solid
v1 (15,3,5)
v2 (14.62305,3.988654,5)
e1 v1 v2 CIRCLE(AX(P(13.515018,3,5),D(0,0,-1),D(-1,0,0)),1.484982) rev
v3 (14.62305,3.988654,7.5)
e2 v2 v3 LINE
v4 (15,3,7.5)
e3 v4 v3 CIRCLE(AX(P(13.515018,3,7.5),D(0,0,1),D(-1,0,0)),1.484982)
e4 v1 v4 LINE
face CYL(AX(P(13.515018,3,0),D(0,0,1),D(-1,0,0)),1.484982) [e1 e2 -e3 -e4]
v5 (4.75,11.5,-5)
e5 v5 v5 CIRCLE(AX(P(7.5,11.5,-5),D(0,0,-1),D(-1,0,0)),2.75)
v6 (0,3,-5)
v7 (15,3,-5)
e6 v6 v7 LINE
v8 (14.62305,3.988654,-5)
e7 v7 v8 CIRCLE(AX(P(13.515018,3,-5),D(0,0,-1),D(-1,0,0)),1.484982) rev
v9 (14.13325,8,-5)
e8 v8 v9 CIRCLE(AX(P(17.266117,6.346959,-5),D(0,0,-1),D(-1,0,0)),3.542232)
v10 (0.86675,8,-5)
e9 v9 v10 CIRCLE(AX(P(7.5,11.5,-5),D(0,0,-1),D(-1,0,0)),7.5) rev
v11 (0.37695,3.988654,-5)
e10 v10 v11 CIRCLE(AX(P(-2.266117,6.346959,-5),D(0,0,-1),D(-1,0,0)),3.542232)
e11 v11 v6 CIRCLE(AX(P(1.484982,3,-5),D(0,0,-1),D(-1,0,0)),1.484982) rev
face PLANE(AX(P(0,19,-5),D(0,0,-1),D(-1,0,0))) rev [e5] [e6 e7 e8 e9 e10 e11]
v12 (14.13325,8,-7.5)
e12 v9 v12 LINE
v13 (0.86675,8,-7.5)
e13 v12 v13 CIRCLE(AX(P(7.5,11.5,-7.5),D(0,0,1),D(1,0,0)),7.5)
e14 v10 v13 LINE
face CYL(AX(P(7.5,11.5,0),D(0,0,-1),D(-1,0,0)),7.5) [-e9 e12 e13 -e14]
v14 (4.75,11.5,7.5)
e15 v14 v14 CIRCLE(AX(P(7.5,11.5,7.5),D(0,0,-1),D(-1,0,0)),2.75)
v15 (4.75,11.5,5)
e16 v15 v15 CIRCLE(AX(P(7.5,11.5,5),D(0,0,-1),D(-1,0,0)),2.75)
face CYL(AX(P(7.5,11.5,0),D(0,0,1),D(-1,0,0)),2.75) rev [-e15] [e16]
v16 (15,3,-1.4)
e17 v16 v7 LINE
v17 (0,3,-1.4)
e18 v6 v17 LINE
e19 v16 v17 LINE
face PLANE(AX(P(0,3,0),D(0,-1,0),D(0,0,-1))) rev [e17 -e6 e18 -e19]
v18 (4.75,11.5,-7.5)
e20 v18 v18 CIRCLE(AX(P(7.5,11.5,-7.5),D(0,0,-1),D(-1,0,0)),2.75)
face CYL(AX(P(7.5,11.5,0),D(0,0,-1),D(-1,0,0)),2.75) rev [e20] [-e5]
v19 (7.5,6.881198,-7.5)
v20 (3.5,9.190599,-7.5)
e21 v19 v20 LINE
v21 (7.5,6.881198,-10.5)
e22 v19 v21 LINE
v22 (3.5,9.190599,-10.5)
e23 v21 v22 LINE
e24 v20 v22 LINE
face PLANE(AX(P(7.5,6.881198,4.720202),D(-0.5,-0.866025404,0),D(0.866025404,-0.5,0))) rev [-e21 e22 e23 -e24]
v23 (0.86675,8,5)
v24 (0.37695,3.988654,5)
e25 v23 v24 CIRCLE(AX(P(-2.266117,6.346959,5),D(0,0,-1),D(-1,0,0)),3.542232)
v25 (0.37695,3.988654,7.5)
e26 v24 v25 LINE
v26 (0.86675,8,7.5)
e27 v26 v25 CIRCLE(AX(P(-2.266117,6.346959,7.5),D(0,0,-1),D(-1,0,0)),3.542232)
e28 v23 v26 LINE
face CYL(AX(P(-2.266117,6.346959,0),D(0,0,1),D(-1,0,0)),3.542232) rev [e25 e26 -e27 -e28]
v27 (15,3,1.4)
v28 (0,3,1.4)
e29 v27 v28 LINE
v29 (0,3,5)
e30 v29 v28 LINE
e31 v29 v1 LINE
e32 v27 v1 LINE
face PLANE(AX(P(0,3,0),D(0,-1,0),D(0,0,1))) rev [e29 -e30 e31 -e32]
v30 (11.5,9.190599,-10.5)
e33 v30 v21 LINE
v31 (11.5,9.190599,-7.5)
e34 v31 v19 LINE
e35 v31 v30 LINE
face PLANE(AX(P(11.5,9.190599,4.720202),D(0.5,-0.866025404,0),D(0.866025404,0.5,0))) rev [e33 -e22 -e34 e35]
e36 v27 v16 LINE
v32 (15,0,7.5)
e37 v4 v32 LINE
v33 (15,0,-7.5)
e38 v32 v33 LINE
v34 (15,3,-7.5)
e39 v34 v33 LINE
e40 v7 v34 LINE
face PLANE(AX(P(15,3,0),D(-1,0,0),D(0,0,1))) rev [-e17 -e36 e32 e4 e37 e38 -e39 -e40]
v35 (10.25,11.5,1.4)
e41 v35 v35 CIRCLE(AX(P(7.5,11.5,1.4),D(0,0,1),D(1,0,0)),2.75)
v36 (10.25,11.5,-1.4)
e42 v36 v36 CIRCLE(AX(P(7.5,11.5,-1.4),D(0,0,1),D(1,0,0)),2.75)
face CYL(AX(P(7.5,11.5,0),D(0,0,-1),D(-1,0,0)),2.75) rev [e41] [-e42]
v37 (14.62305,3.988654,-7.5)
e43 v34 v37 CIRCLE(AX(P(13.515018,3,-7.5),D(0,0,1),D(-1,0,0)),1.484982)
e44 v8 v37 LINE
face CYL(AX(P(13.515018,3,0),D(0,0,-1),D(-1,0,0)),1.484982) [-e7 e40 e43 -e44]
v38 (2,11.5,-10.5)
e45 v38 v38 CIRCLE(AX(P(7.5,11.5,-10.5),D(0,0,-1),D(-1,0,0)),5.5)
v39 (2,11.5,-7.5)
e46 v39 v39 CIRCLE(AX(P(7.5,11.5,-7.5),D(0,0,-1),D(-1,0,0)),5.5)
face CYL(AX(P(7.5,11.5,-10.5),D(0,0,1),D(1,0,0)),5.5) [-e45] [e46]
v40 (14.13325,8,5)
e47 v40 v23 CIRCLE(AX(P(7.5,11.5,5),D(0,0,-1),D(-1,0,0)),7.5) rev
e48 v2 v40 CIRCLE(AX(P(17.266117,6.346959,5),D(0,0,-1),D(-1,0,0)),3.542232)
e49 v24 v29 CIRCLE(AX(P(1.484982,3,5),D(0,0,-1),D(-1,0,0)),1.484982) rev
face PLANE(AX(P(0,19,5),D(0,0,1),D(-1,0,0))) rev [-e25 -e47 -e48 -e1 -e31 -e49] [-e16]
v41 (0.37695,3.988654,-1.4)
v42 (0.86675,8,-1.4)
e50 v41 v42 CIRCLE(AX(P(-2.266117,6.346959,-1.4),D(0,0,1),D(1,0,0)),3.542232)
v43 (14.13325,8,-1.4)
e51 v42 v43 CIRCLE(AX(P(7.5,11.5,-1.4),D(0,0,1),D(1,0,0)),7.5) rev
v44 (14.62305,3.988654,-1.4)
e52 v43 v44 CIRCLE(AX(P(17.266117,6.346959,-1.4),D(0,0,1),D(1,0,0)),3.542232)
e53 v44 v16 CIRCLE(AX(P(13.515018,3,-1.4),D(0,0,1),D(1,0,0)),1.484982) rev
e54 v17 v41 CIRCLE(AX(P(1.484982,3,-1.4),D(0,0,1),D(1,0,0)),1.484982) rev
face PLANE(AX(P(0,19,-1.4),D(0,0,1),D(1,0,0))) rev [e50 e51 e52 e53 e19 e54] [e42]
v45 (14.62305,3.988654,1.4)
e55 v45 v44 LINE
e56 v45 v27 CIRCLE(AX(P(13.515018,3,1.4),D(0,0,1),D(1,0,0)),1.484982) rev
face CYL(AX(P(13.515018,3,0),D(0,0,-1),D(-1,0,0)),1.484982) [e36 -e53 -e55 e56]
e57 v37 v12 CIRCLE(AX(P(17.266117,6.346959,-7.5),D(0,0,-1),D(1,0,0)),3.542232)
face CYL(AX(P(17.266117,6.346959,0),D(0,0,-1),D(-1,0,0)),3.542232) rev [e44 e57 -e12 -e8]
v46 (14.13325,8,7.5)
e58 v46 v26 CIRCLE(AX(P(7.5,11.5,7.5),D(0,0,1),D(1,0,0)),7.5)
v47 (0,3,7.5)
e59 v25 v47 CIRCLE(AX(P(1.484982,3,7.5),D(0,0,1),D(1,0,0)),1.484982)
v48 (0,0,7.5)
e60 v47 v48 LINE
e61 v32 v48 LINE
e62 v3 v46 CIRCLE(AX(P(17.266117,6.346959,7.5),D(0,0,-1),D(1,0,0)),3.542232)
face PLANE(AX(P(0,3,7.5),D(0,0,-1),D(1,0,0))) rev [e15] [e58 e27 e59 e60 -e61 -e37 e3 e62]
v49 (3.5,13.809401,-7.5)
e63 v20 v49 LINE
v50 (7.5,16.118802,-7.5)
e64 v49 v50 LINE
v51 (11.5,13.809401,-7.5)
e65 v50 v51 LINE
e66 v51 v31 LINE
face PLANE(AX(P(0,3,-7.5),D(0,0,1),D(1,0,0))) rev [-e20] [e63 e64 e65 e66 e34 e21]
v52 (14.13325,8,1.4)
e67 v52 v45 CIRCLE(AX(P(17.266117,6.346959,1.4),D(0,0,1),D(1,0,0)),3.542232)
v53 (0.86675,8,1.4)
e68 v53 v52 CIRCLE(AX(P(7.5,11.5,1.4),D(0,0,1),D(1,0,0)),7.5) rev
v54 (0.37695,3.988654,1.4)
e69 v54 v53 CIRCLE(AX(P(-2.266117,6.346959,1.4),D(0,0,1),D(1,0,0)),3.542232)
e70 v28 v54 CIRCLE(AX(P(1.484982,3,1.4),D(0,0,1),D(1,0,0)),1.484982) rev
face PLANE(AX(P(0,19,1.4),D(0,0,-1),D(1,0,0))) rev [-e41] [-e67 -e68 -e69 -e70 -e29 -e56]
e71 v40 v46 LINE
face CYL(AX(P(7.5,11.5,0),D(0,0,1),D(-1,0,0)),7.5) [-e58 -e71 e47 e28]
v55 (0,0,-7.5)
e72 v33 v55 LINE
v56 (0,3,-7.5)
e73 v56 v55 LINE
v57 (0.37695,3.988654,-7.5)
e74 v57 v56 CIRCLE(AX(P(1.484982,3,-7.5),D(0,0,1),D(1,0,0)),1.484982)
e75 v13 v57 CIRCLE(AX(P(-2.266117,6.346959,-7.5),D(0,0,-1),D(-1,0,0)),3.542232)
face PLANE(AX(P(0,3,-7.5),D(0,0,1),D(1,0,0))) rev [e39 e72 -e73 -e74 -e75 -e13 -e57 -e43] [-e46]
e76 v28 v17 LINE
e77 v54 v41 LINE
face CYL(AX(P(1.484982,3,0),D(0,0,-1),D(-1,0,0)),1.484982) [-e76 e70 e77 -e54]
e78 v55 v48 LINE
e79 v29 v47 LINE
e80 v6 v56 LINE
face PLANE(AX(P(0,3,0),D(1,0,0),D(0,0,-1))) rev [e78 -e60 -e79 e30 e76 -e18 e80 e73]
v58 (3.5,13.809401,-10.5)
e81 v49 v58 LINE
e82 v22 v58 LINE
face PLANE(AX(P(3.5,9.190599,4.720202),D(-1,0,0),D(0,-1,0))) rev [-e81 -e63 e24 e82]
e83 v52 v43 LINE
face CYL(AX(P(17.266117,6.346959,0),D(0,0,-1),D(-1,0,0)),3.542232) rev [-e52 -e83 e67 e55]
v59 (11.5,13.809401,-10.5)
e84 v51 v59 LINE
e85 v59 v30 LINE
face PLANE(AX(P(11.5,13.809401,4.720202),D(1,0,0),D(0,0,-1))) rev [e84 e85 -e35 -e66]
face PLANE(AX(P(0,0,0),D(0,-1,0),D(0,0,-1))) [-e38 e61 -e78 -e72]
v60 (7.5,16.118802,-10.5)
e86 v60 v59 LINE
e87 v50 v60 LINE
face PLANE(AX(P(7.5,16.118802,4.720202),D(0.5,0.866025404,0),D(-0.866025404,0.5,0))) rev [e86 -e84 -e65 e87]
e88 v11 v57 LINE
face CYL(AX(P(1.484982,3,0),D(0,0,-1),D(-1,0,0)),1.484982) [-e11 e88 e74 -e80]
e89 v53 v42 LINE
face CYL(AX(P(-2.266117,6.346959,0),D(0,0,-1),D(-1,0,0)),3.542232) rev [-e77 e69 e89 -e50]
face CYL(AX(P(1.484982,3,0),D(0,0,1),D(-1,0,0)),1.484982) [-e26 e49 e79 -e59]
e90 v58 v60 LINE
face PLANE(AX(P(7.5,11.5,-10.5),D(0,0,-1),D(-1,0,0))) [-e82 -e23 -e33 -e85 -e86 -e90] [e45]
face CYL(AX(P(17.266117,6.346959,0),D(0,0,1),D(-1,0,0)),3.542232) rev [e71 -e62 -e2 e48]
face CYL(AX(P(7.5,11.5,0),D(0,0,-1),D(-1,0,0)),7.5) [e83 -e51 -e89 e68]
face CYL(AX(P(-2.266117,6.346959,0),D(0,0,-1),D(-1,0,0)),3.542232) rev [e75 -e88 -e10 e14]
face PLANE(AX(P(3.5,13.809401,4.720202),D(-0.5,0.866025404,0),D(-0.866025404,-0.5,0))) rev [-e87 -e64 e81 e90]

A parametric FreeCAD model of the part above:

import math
import FreeCAD as App
import Part
import Sketcher

V = App.Vector
Q = App.Units.Quantity

doc = App.newDocument("Part")
params = doc.addObject("Spreadsheet::Sheet", "Params")
for row, (alias, value) in enumerate([
    ("sketch1_width", "15 mm"),
    ("sketch1_height", "7.5 mm"),
    ("pad1_length", "3 mm"),
    ("sketch2_width", "15 mm"),
    ("sketch2_height", "2.5 mm"),
    ("sketch2_height2", "1.4 mm"),
    ("pad2_length", "16 mm"),
    ("sketch3_radius", "7.5 mm"),
    ("sketch4_diameter", "5.5 mm"),
    ("sketch5_diameter", "11 mm"),
    ("pad3_length", "3 mm"),
    ("pocket3_length", "3 mm"),
], start=1):
    params.set(f"A{row}", alias)
    params.set(f"B{row}", "=" + value)
    params.setAlias(f"B{row}", alias)

body = doc.addObject("PartDesign::Body", "Body")

sketch1 = doc.addObject("Sketcher::SketchObject", "Sketch")
body.addObject(sketch1)
sketch1.AttachmentSupport = (doc.XZ_Plane, [""])
sketch1.MapMode = "FlatFace"
sketch1.addGeometry(Part.LineSegment(V(0, -8, 0), V(0, 0, 0)), False)
sketch1.addGeometry(Part.LineSegment(V(0, 0, 0), V(15, 0, 0)), False)
sketch1.addGeometry(Part.LineSegment(V(15, 0, 0), V(15, -8, 0)), False)
sketch1.addGeometry(Part.LineSegment(V(15, -8, 0), V(0, -8, 0)), False)
sketch1.addConstraint(Sketcher.Constraint("Coincident", 0, 2, 1, 1))
sketch1.addConstraint(Sketcher.Constraint("Coincident", 1, 2, 2, 1))
sketch1.addConstraint(Sketcher.Constraint("Coincident", 2, 2, 3, 1))
sketch1.addConstraint(Sketcher.Constraint("Coincident", 3, 2, 0, 1))
sketch1.addConstraint(Sketcher.Constraint("Vertical", 0))
sketch1.addConstraint(Sketcher.Constraint("Horizontal", 1))
sketch1.addConstraint(Sketcher.Constraint("Vertical", 2))
sketch1.addConstraint(Sketcher.Constraint("Horizontal", 3))
sketch1.addConstraint(Sketcher.Constraint("Coincident", 0, 2, -1, 1))
sketch1.addConstraint(Sketcher.Constraint("DistanceX", 1, 1, 1, 2, 15.0))
sketch1.addConstraint(Sketcher.Constraint("DistanceY", 0, 1, 0, 2, 7.5))
sketch1.setExpression("Constraints[9]", "Params.sketch1_width")
sketch1.setExpression("Constraints[10]", "Params.sketch1_height")
pad1 = doc.addObject("PartDesign::Pad", "Pad")
body.addObject(pad1)
pad1.Profile = sketch1
pad1.setExpression("Length", "Params.pad1_length")
pad1.Reversed = True

sketch2 = doc.addObject("Sketcher::SketchObject", "Sketch001")
body.addObject(sketch2)
sketch2.AttachmentSupport = (doc.XZ_Plane, [""])
sketch2.MapMode = "FlatFace"
sketch2.AttachmentOffset = App.Placement(V(0, 0, -3), App.Rotation())
sketch2.addGeometry(Part.LineSegment(V(0, -7.5, 0), V(0, -5, 0)), False)
sketch2.addGeometry(Part.LineSegment(V(0, -5, 0), V(15, -5, 0)), False)
sketch2.addGeometry(Part.LineSegment(V(15, -5, 0), V(15, -7.5, 0)), False)
sketch2.addGeometry(Part.LineSegment(V(15, -7.5, 0), V(0, -7.5, 0)), False)
sketch2.addGeometry(Part.LineSegment(V(0, -1.4, 0), V(0, 0, 0)), False)
sketch2.addGeometry(Part.LineSegment(V(0, 0, 0), V(15, 0, 0)), False)
sketch2.addGeometry(Part.LineSegment(V(15, 0, 0), V(15, -1.4, 0)), False)
sketch2.addGeometry(Part.LineSegment(V(15, -1.4, 0), V(0, -1.4, 0)), False)
sketch2.addConstraint(Sketcher.Constraint("Coincident", 0, 2, 1, 1))
sketch2.addConstraint(Sketcher.Constraint("Coincident", 1, 2, 2, 1))
sketch2.addConstraint(Sketcher.Constraint("Coincident", 2, 2, 3, 1))
sketch2.addConstraint(Sketcher.Constraint("Coincident", 3, 2, 0, 1))
sketch2.addConstraint(Sketcher.Constraint("Coincident", 4, 2, 5, 1))
sketch2.addConstraint(Sketcher.Constraint("Coincident", 5, 2, 6, 1))
sketch2.addConstraint(Sketcher.Constraint("Coincident", 6, 2, 7, 1))
sketch2.addConstraint(Sketcher.Constraint("Coincident", 7, 2, 4, 1))
sketch2.addConstraint(Sketcher.Constraint("Vertical", 0))
sketch2.addConstraint(Sketcher.Constraint("Horizontal", 1))
sketch2.addConstraint(Sketcher.Constraint("Vertical", 2))
sketch2.addConstraint(Sketcher.Constraint("Horizontal", 3))
sketch2.addConstraint(Sketcher.Constraint("Vertical", 4))
sketch2.addConstraint(Sketcher.Constraint("Horizontal", 5))
sketch2.addConstraint(Sketcher.Constraint("Vertical", 6))
sketch2.addConstraint(Sketcher.Constraint("Horizontal", 7))
sketch2.addConstraint(Sketcher.Constraint("Coincident", 4, 2, -1, 1))
sketch2.addConstraint(Sketcher.Constraint("PointOnObject", 0, 2, -2))
sketch2.addConstraint(Sketcher.Constraint("Vertical", 2, 2, 5, 2))
sketch2.addConstraint(Sketcher.Constraint("DistanceX", 1, 1, 1, 2, 15.0))
sketch2.addConstraint(Sketcher.Constraint("DistanceY", 0, 1, 0, 2, 2.5))
sketch2.addConstraint(Sketcher.Constraint("DistanceY", 4, 1, 4, 2, 1.4))
sketch2.addConstraint(Sketcher.Constraint("DistanceY", 0, 2, -1, 1, 5.0))
sketch2.setExpression("Constraints[19]", "Params.sketch2_width")
sketch2.setExpression("Constraints[20]", "Params.sketch2_height")
sketch2.setExpression("Constraints[21]", "Params.sketch2_height2")
pad2 = doc.addObject("PartDesign::Pad", "Pad001")
body.addObject(pad2)
pad2.Profile = sketch2
pad2.setExpression("Length", "Params.pad2_length")
pad2.Reversed = True

sketch3 = doc.addObject("Sketcher::SketchObject", "Sketch002")
body.addObject(sketch3)
sketch3.AttachmentSupport = (doc.XY_Plane, [""])
sketch3.MapMode = "FlatFace"
sketch3.AttachmentOffset = App.Placement(V(0, 0, -7.5), App.Rotation())
sketch3.addGeometry(Part.LineSegment(V(0, 3, 0), V(-3.1, 3, 0)), False)
sketch3.addGeometry(Part.LineSegment(V(-3.1, 3, 0), V(-3.1, 20.7, 0)), False)
sketch3.addGeometry(Part.LineSegment(V(-3.1, 20.7, 0), V(18.2, 20.7, 0)), False)
sketch3.addGeometry(Part.LineSegment(V(18.2, 20.7, 0), V(18.2, 3, 0)), False)
sketch3.addGeometry(Part.LineSegment(V(18.2, 3, 0), V(15, 3, 0)), False)
sketch3.addGeometry(Part.ArcOfCircle(Part.Circle(V(13.5, 3, 0), V(0, 0, 1), 1.5), math.radians(0), math.radians(42)), False)
sketch3.addGeometry(Part.ArcOfCircle(Part.Circle(V(17.3, 6.3, 0), V(0, 0, 1), 3.5), math.radians(152), math.radians(222)), False)
sketch3.addGeometry(Part.ArcOfCircle(Part.Circle(V(7.5, 11.5, 0), V(0, 0, 1), 7.5), math.radians(-28), math.radians(208)), False)
sketch3.addGeometry(Part.ArcOfCircle(Part.Circle(V(-2.3, 6.3, 0), V(0, 0, 1), 3.5), math.radians(-42), math.radians(28)), False)
sketch3.addGeometry(Part.ArcOfCircle(Part.Circle(V(1.5, 3, 0), V(0, 0, 1), 1.5), math.radians(138), math.radians(180)), False)
sketch3.addConstraint(Sketcher.Constraint("Coincident", 0, 2, 1, 1))
sketch3.addConstraint(Sketcher.Constraint("Coincident", 1, 2, 2, 1))
sketch3.addConstraint(Sketcher.Constraint("Coincident", 2, 2, 3, 1))
sketch3.addConstraint(Sketcher.Constraint("Coincident", 3, 2, 4, 1))
sketch3.addConstraint(Sketcher.Constraint("Coincident", 4, 2, 5, 1))
sketch3.addConstraint(Sketcher.Constraint("Tangent", 5, 2, 6, 2))
sketch3.addConstraint(Sketcher.Constraint("Tangent", 6, 1, 7, 1))
sketch3.addConstraint(Sketcher.Constraint("Tangent", 7, 2, 8, 2))
sketch3.addConstraint(Sketcher.Constraint("Tangent", 8, 1, 9, 1))
sketch3.addConstraint(Sketcher.Constraint("Coincident", 9, 2, 0, 1))
sketch3.addConstraint(Sketcher.Constraint("Horizontal", 0))
sketch3.addConstraint(Sketcher.Constraint("Vertical", 1))
sketch3.addConstraint(Sketcher.Constraint("Horizontal", 2))
sketch3.addConstraint(Sketcher.Constraint("Vertical", 3))
sketch3.addConstraint(Sketcher.Constraint("Horizontal", 4))
sketch3.addConstraint(Sketcher.Constraint("Equal", 6, 8))
sketch3.addConstraint(Sketcher.Constraint("Equal", 5, 9))
sketch3.addConstraint(Sketcher.Constraint("PointOnObject", 9, 2, -2))
sketch3.addConstraint(Sketcher.Constraint("Horizontal", 6, 3, 8, 3))
sketch3.addConstraint(Sketcher.Constraint("Horizontal", 5, 3, 9, 3))
sketch3.addConstraint(Sketcher.Constraint("Horizontal", 9, 3, 0, 2))
sketch3.addConstraint(Sketcher.Constraint("Horizontal", 0, 2, 3, 2))
sketch3.addConstraint(Sketcher.Constraint("Radius", 7, 7.5))
sketch3.addConstraint(Sketcher.Constraint("DistanceY", -1, 1, 5, 3, 3.0))
sketch3.addConstraint(Sketcher.Constraint("DistanceX", -1, 1, 4, 2, 15.0))
sketch3.addConstraint(Sketcher.Constraint("DistanceY", -1, 1, 6, 1, 8.0))
sketch3.addConstraint(Sketcher.Constraint("DistanceY", -1, 1, 7, 3, 11.5))
sketch3.addConstraint(Sketcher.Constraint("Radius", 5, 1.484982))
sketch3.addConstraint(Sketcher.Constraint("DistanceX", 0, 2, 0, 1, 3.14497))
sketch3.addConstraint(Sketcher.Constraint("DistanceY", 1, 1, 1, 2, 17.655432))
sketch3.addConstraint(Sketcher.Constraint("DistanceX", 2, 1, 2, 2, 21.299905))
sketch3.setExpression("Constraints[22]", "Params.sketch3_radius")
pocket1 = doc.addObject("PartDesign::Pocket", "Pocket")
body.addObject(pocket1)
pocket1.Profile = sketch3
pocket1.Type = "ThroughAll"
pocket1.Reversed = True

sketch4 = doc.addObject("Sketcher::SketchObject", "Sketch003")
body.addObject(sketch4)
sketch4.AttachmentSupport = (doc.XY_Plane, [""])
sketch4.MapMode = "FlatFace"
sketch4.AttachmentOffset = App.Placement(V(0, 0, -7.5), App.Rotation())
sketch4.addGeometry(Part.Circle(V(7.5, 11.5, 0), V(0, 0, 1), 2.8), False)
sketch4.addConstraint(Sketcher.Constraint("Diameter", 0, 5.5))
sketch4.addConstraint(Sketcher.Constraint("DistanceX", -1, 1, 0, 3, 7.5))
sketch4.addConstraint(Sketcher.Constraint("DistanceY", -1, 1, 0, 3, 11.5))
sketch4.setExpression("Constraints[0]", "Params.sketch4_diameter")
pocket2 = doc.addObject("PartDesign::Pocket", "Pocket001")
body.addObject(pocket2)
pocket2.Profile = sketch4
pocket2.Type = "ThroughAll"
pocket2.Reversed = True
body2 = doc.addObject("PartDesign::Body", "Body001")
doc.recompute()

body2.BaseFeature = body
doc.recompute()

mirroring = doc.addObject("Part::Mirroring", "Mirroring")
mirroring.Source = body
mirroring.Base = V(0, 3, 0)
mirroring.Normal = V(0, 0, -1)
body3 = doc.addObject("PartDesign::Body", "Body002")
body3.BaseFeature = mirroring
boolean = doc.addObject("PartDesign::Boolean", "Boolean")
body2.addObject(boolean)
boolean.Type = "Fuse"
boolean.addObjects([body3])
doc.recompute()

sketch5 = doc.addObject("Sketcher::SketchObject", "Sketch004")
body2.addObject(sketch5)
sketch5.AttachmentSupport = (doc.getObject("XY_Plane001"), [""])
sketch5.MapMode = "FlatFace"
sketch5.AttachmentOffset = App.Placement(V(0, 0, -7.5), App.Rotation())
sketch5.addGeometry(Part.Circle(V(8, 12, 0), V(0, 0, 1), 6), False)
sketch5.addConstraint(Sketcher.Constraint("Diameter", 0, 11.0))
sketch5.addConstraint(Sketcher.Constraint("DistanceX", -1, 1, 0, 3, 7.5))
sketch5.addConstraint(Sketcher.Constraint("DistanceY", -1, 1, 0, 3, 11.5))
sketch5.setExpression("Constraints[0]", "Params.sketch5_diameter")
pad3 = doc.addObject("PartDesign::Pad", "Pad002")
body2.addObject(pad3)
pad3.Profile = sketch5
pad3.setExpression("Length", "Params.pad3_length")
pad3.Reversed = True

sketch6 = doc.addObject("Sketcher::SketchObject", "Sketch005")
body2.addObject(sketch6)
sketch6.AttachmentSupport = (doc.getObject("XY_Plane001"), [""])
sketch6.MapMode = "FlatFace"
sketch6.AttachmentOffset = App.Placement(V(0, 0, -10.5), App.Rotation())
sketch6.addGeometry(Part.LineSegment(V(3.5, 9.2, 0), V(3.5, 13.8, 0)), False)
sketch6.addGeometry(Part.LineSegment(V(3.5, 13.8, 0), V(7.5, 16.1, 0)), False)
sketch6.addGeometry(Part.LineSegment(V(7.5, 16.1, 0), V(11.5, 13.8, 0)), False)
sketch6.addGeometry(Part.LineSegment(V(11.5, 13.8, 0), V(11.5, 9.2, 0)), False)
sketch6.addGeometry(Part.LineSegment(V(11.5, 9.2, 0), V(7.5, 6.9, 0)), False)
sketch6.addGeometry(Part.LineSegment(V(7.5, 6.9, 0), V(3.5, 9.2, 0)), False)
sketch6.addConstraint(Sketcher.Constraint("Coincident", 0, 2, 1, 1))
sketch6.addConstraint(Sketcher.Constraint("Coincident", 1, 2, 2, 1))
sketch6.addConstraint(Sketcher.Constraint("Coincident", 2, 2, 3, 1))
sketch6.addConstraint(Sketcher.Constraint("Coincident", 3, 2, 4, 1))
sketch6.addConstraint(Sketcher.Constraint("Coincident", 4, 2, 5, 1))
sketch6.addConstraint(Sketcher.Constraint("Coincident", 5, 2, 0, 1))
sketch6.addConstraint(Sketcher.Constraint("Vertical", 0))
sketch6.addConstraint(Sketcher.Constraint("Vertical", 3))
sketch6.addConstraint(Sketcher.Constraint("Parallel", 1, 4))
sketch6.addConstraint(Sketcher.Constraint("Parallel", 2, 5))
sketch6.addConstraint(Sketcher.Constraint("Horizontal", 0, 2, 2, 2))
sketch6.addConstraint(Sketcher.Constraint("Horizontal", 3, 2, 5, 2))
sketch6.addConstraint(Sketcher.Constraint("Vertical", 1, 2, 4, 2))
sketch6.addConstraint(Sketcher.Constraint("Angle", 1, Q("30 deg")))
sketch6.addConstraint(Sketcher.Constraint("DistanceX", 0, 2, 1, 2, 4.0))
sketch6.addConstraint(Sketcher.Constraint("DistanceX", -1, 1, 0, 2, 3.5))
sketch6.addConstraint(Sketcher.Constraint("DistanceY", -1, 1, 0, 2, 13.809401))
sketch6.addConstraint(Sketcher.Constraint("DistanceY", -1, 1, 3, 2, 9.190599))
pocket3 = doc.addObject("PartDesign::Pocket", "Pocket002")
body2.addObject(pocket3)
pocket3.Profile = sketch6
pocket3.setExpression("Length", "Params.pocket3_length")
pocket3.Reversed = True
mirroring.Visibility = False

doc.recompute()
